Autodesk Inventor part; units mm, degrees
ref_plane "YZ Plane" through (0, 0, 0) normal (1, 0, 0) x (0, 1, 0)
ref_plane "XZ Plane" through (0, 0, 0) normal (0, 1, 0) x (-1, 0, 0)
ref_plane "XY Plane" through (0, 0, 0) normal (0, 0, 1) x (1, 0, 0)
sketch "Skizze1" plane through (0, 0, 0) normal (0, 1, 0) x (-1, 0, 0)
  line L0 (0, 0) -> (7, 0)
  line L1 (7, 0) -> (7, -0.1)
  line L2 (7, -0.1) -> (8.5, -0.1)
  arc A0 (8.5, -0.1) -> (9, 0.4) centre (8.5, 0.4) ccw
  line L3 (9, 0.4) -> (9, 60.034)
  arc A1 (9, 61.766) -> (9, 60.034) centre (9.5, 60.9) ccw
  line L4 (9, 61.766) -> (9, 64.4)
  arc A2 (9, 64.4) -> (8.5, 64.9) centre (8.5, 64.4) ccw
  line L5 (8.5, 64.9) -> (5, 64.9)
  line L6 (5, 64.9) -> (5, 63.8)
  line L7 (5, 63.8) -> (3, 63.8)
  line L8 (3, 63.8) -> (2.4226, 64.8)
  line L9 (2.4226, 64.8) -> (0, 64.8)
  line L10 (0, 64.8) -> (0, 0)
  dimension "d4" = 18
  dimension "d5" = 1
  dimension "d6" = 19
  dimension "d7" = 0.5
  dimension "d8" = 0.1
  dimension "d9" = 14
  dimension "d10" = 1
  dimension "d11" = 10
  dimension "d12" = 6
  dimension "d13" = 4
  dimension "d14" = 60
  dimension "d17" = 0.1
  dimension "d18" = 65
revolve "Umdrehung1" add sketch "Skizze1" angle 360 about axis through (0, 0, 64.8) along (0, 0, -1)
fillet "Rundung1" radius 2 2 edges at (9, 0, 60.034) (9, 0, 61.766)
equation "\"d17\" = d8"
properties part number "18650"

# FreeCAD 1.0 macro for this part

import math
import FreeCAD as App
import Part
import Sketcher
Q = App.Units.Quantity


def edges_at(feature, points):
    """Names of the edges that pass closest to the given points."""
    edges = feature.Shape.Edges
    near = lambda p: min(range(len(edges)), key=lambda i: edges[i].distToShape(Part.Vertex(*p))[0])
    return sorted({f"Edge{near(p) + 1}" for p in points})

doc = App.newDocument("Part")
params = doc.addObject("Spreadsheet::Sheet", "Params")
for row, (alias, value) in enumerate([
    ("sketch1_radius", "1 mm"),
    ("sketch1_radius2", "0.5 mm"),
    ("sketch1_height", "0.1 mm"),
    ("sketch1_width", "7 mm"),
    ("sketch1_width2", "1.5 mm"),
    ("revolution_angle", "360 deg"),
    ("fillet_radius", "2 mm"),
], start=1):
    params.set(f"A{row}", alias)
    params.set(f"B{row}", "=" + value)
    params.setAlias(f"B{row}", alias)

body = doc.addObject("PartDesign::Body", "Body")

sketch1 = doc.addObject("Sketcher::SketchObject", "Sketch")
body.addObject(sketch1)
sketch1.AttachmentSupport = (doc.XZ_Plane, [""])
sketch1.MapMode = "FlatFace"
sketch1.addGeometry([
    Part.LineSegment(App.Vector(0, 64.8, 0), App.Vector(0, 0, 0)),
    Part.LineSegment(App.Vector(0, 0, 0), App.Vector(-7, 0, 0)),
    Part.LineSegment(App.Vector(-7, 0, 0), App.Vector(-7, -0.1, 0)),
    Part.LineSegment(App.Vector(-7, -0.1, 0), App.Vector(-8.5, -0.1, 0)),
    Part.ArcOfCircle(Part.Circle(App.Vector(-8.5, 0.4, 0), App.Vector(0, 0, 1), 0.5), math.radians(180), math.radians(270)),
    Part.LineSegment(App.Vector(-9, 0.4, 0), App.Vector(-9, 60.03, 0)),
    Part.ArcOfCircle(Part.Circle(App.Vector(-9.5, 60.9, 0), App.Vector(0, 0, 1), 1), math.radians(-60), math.radians(60)),
    Part.LineSegment(App.Vector(-9, 61.77, 0), App.Vector(-9, 64.4, 0)),
    Part.ArcOfCircle(Part.Circle(App.Vector(-8.5, 64.4, 0), App.Vector(0, 0, 1), 0.5), math.radians(90), math.radians(180)),
    Part.LineSegment(App.Vector(-8.5, 64.9, 0), App.Vector(-5, 64.9, 0)),
    Part.LineSegment(App.Vector(-5, 64.9, 0), App.Vector(-5, 63.8, 0)),
    Part.LineSegment(App.Vector(-5, 63.8, 0), App.Vector(-3, 63.8, 0)),
    Part.LineSegment(App.Vector(-3, 63.8, 0), App.Vector(-2.42, 64.8, 0)),
    Part.LineSegment(App.Vector(-2.42, 64.8, 0), App.Vector(0, 64.8, 0)),
], False)
sketch1.addConstraint([
    Sketcher.Constraint("Coincident", 0, 2, 1, 1),
    Sketcher.Constraint("Coincident", 1, 2, 2, 1),
    Sketcher.Constraint("Coincident", 2, 2, 3, 1),
    Sketcher.Constraint("Tangent", 3, 2, 4, 2),
    Sketcher.Constraint("Tangent", 4, 1, 5, 1),
    Sketcher.Constraint("Coincident", 5, 2, 6, 1),
    Sketcher.Constraint("Coincident", 6, 2, 7, 1),
    Sketcher.Constraint("Tangent", 7, 2, 8, 2),
    Sketcher.Constraint("Tangent", 8, 1, 9, 1),
    Sketcher.Constraint("Coincident", 9, 2, 10, 1),
    Sketcher.Constraint("Coincident", 10, 2, 11, 1),
    Sketcher.Constraint("Coincident", 11, 2, 12, 1),
    Sketcher.Constraint("Coincident", 12, 2, 13, 1),
    Sketcher.Constraint("Coincident", 13, 2, 0, 1),
    Sketcher.Constraint("Vertical", 0),
    Sketcher.Constraint("Horizontal", 1),
    Sketcher.Constraint("Vertical", 2),
    Sketcher.Constraint("Horizontal", 3),
    Sketcher.Constraint("Vertical", 5),
    Sketcher.Constraint("Vertical", 7),
    Sketcher.Constraint("Horizontal", 9),
    Sketcher.Constraint("Vertical", 10),
    Sketcher.Constraint("Horizontal", 11),
    Sketcher.Constraint("Horizontal", 13),
    Sketcher.Constraint("Coincident", 0, 2, -1, 1),
    Sketcher.Constraint("Equal", 4, 8),
    Sketcher.Constraint("Vertical", 4, 3, 8, 3),
    Sketcher.Constraint("Radius", 6, Q("1 mm")),
    Sketcher.Constraint("Radius", 4, Q("0.5 mm")),
    Sketcher.Constraint("DistanceY", 2, 2, 2, 1, Q("0.1 mm")),
    Sketcher.Constraint("DistanceX", 6, 3, 4, 3, Q("1 mm")),
    Sketcher.Constraint("DistanceY", 6, 3, 8, 1, Q("4 mm")),
    Sketcher.Constraint("DistanceX", 7, 2, 9, 2, Q("4 mm")),
    Sketcher.Constraint("DistanceX", 7, 2, 11, 2, Q("6 mm")),
    Sketcher.Constraint("DistanceY", 11, 2, 12, 2, Q("1 mm")),
    Sketcher.Constraint("DistanceY", 12, 2, 9, 2, Q("0.1 mm")),
    Sketcher.Constraint("DistanceX", 1, 2, 1, 1, Q("7 mm")),
    Sketcher.Constraint("DistanceX", 3, 2, 3, 1, Q("1.5 mm")),
    Sketcher.Constraint("DistanceY", 0, 2, 0, 1, Q("64.8 mm")),
    Sketcher.Constraint("DistanceX", 13, 1, 13, 2, Q("2.4226 mm")),
])
sketch1.setExpression("Constraints[27]", "Params.sketch1_radius")
sketch1.setExpression("Constraints[28]", "Params.sketch1_radius2")
sketch1.setExpression("Constraints[29]", "Params.sketch1_height")
sketch1.setExpression("Constraints[36]", "Params.sketch1_width")
sketch1.setExpression("Constraints[37]", "Params.sketch1_width2")
revolution = doc.addObject("PartDesign::Revolution", "Revolution")
body.addObject(revolution)
revolution.Profile = sketch1
revolution.ReferenceAxis = (sketch1, ["V_Axis"])
revolution.setExpression("Angle", "Params.revolution_angle")
doc.recompute()

fillet = doc.addObject("PartDesign::Fillet", "Fillet")
body.addObject(fillet)
fillet.Base = (revolution, edges_at(revolution, [(9, 0, 60.034), (9, 0, 61.766)]))
fillet.setExpression("Radius", "Params.fillet_radius")

doc.recompute()
